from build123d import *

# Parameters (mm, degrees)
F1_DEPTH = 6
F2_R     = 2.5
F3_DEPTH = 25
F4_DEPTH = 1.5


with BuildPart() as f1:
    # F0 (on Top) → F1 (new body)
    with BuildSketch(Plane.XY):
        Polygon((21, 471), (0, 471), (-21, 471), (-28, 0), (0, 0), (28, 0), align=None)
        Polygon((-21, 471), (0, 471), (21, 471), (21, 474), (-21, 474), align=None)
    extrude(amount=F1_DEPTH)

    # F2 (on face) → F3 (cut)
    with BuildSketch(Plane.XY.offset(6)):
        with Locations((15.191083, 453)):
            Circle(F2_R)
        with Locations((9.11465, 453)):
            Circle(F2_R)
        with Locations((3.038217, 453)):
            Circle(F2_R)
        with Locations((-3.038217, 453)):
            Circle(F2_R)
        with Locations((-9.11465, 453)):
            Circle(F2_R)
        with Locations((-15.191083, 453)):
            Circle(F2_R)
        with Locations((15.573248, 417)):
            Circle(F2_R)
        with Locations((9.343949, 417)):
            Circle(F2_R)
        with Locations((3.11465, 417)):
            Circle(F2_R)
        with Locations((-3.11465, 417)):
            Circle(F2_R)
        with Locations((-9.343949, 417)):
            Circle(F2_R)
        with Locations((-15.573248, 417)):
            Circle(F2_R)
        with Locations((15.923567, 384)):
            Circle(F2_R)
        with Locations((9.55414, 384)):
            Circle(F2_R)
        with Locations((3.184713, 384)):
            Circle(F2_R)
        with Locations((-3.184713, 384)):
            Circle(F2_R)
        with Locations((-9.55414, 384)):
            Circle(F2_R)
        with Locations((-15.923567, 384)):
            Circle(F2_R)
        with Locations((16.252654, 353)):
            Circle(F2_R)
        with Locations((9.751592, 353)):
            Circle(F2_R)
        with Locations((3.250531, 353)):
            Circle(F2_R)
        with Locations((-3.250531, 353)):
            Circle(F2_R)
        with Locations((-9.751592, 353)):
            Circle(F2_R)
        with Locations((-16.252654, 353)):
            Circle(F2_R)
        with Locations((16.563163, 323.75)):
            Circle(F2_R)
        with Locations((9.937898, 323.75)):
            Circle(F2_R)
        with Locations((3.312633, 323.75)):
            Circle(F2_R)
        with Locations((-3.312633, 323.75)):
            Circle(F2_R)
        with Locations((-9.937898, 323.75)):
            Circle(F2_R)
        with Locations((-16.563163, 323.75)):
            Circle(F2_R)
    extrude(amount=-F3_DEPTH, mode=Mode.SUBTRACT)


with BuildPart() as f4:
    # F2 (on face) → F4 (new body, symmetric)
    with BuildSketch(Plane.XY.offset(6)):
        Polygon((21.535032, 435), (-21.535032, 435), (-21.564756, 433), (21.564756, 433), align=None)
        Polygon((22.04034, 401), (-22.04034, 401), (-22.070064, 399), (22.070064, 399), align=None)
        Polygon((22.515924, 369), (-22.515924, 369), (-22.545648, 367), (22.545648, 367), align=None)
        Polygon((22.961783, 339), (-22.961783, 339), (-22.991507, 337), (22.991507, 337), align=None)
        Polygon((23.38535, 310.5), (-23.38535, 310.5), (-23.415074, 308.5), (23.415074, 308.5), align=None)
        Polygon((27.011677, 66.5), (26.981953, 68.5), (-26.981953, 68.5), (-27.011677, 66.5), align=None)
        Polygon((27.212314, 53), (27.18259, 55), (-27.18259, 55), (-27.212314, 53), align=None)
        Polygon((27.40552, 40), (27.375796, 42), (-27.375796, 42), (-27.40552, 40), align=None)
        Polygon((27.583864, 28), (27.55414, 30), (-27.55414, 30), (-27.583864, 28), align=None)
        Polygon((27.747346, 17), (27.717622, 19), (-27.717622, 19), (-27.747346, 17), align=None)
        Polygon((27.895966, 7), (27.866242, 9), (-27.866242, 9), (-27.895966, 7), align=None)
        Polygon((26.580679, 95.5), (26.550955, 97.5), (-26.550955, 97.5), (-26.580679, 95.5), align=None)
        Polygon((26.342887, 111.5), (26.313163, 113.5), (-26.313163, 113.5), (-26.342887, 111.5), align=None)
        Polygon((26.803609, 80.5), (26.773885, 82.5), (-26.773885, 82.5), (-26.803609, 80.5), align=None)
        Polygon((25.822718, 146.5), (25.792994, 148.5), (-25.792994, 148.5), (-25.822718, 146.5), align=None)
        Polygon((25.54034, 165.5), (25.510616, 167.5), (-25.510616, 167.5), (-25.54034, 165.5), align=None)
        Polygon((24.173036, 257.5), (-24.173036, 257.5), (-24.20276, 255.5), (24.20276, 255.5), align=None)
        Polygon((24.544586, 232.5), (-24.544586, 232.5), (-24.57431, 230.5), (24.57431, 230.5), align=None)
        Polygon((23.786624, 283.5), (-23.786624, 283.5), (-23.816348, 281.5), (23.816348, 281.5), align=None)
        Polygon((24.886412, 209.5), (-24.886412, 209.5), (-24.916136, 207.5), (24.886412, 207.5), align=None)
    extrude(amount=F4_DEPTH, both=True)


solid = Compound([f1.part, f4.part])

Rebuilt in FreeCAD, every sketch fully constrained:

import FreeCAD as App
import Part
import Sketcher


def add_polygon(sketch, points):
    """Adds a closed chain of lines whose ends are joined by coincident constraints."""
    first, n = sketch.GeometryCount, len(points)
    for a, b in zip(points, points[1:] + points[:1]):
        sketch.addGeometry(Part.LineSegment(App.Vector(*a, 0), App.Vector(*b, 0)), False)
    for i in range(n):
        sketch.addConstraint(Sketcher.Constraint("Coincident", first + i, 2, first + (i + 1) % n, 1))

doc = App.newDocument("Part")
params = doc.addObject("Spreadsheet::Sheet", "Params")
for row, (alias, value) in enumerate([
    ("sketch1_width", "56 mm"),
    ("sketch1_width2", "42 mm"),
    ("sketch1_height", "3 mm"),
    ("pad1_length", "6 mm"),
    ("sketch2_diameter", "5 mm"),
    ("pocket1_length", "25 mm"),
    ("sketch3_height", "2 mm"),
    ("pad2_length", "3 mm"),
], start=1):
    params.set(f"A{row}", alias)
    params.set(f"B{row}", "=" + value)
    params.setAlias(f"B{row}", alias)

body = doc.addObject("PartDesign::Body", "Body")

# Sketch on XY plane
sketch1 = body.newObject("Sketcher::SketchObject", "Sketch")
sketch1.AttachmentSupport = (doc.getObject("XY_Plane"), [""])
sketch1.MapMode = "FlatFace"
add_polygon(sketch1, [(-21, 471), (-28, 0), (28, 0), (21, 471), (21, 474), (-21, 474)])  # lines 0-5
sketch1.addConstraint([
    Sketcher.Constraint("Horizontal", 1),
    Sketcher.Constraint("Vertical", 3),
    Sketcher.Constraint("Horizontal", 4),
    Sketcher.Constraint("Vertical", 5),
    Sketcher.Constraint("Symmetric", 0, 2, 1, 2, -1, 1),
    Sketcher.Constraint("Symmetric", 2, 2, 5, 2, -2),
    Sketcher.Constraint("DistanceX", 1, 1, 1, 2, 56.0),
    Sketcher.Constraint("DistanceX", 4, 2, 4, 1, 42.0),
    Sketcher.Constraint("DistanceY", 3, 1, 3, 2, 3.0),
    Sketcher.Constraint("DistanceY", -1, 1, 2, 2, 471.0),
])
sketch1.setExpression("Constraints[12]", "Params.sketch1_width")
sketch1.setExpression("Constraints[13]", "Params.sketch1_width2")
sketch1.setExpression("Constraints[14]", "Params.sketch1_height")
pad1 = body.newObject("PartDesign::Pad", "Pad")
pad1.Profile = sketch1
pad1.setExpression("Length", "Params.pad1_length")

# Sketch on XY plane
sketch2 = body.newObject("Sketcher::SketchObject", "Sketch001")
sketch2.AttachmentSupport = (doc.getObject("XY_Plane"), [""])
sketch2.MapMode = "FlatFace"
sketch2.AttachmentOffset = App.Placement(App.Vector(0, 0, 6), App.Rotation())
sketch2.addGeometry([
    Part.Circle(App.Vector(15.2, 453, 0), App.Vector(0, 0, 1), 2.5),  # 0
    Part.Circle(App.Vector(9.1, 453, 0), App.Vector(0, 0, 1), 2.5),  # 1
    Part.Circle(App.Vector(3, 453, 0), App.Vector(0, 0, 1), 2.5),  # 2
    Part.Circle(App.Vector(-3, 453, 0), App.Vector(0, 0, 1), 2.5),  # 3
    Part.Circle(App.Vector(-9.1, 453, 0), App.Vector(0, 0, 1), 2.5),  # 4
    Part.Circle(App.Vector(-15.2, 453, 0), App.Vector(0, 0, 1), 2.5),  # 5
    Part.Circle(App.Vector(15.6, 417, 0), App.Vector(0, 0, 1), 2.5),  # 6
    Part.Circle(App.Vector(9.3, 417, 0), App.Vector(0, 0, 1), 2.5),  # 7
    Part.Circle(App.Vector(3.1, 417, 0), App.Vector(0, 0, 1), 2.5),  # 8
    Part.Circle(App.Vector(-3.1, 417, 0), App.Vector(0, 0, 1), 2.5),  # 9
    Part.Circle(App.Vector(-9.3, 417, 0), App.Vector(0, 0, 1), 2.5),  # 10
    Part.Circle(App.Vector(-15.6, 417, 0), App.Vector(0, 0, 1), 2.5),  # 11
    Part.Circle(App.Vector(15.9, 384, 0), App.Vector(0, 0, 1), 2.5),  # 12
    Part.Circle(App.Vector(9.6, 384, 0), App.Vector(0, 0, 1), 2.5),  # 13
    Part.Circle(App.Vector(3.2, 384, 0), App.Vector(0, 0, 1), 2.5),  # 14
    Part.Circle(App.Vector(-3.2, 384, 0), App.Vector(0, 0, 1), 2.5),  # 15
    Part.Circle(App.Vector(-9.6, 384, 0), App.Vector(0, 0, 1), 2.5),  # 16
    Part.Circle(App.Vector(-15.9, 384, 0), App.Vector(0, 0, 1), 2.5),  # 17
    Part.Circle(App.Vector(16.3, 353, 0), App.Vector(0, 0, 1), 2.5),  # 18
    Part.Circle(App.Vector(9.8, 353, 0), App.Vector(0, 0, 1), 2.5),  # 19
    Part.Circle(App.Vector(3.3, 353, 0), App.Vector(0, 0, 1), 2.5),  # 20
    Part.Circle(App.Vector(-3.3, 353, 0), App.Vector(0, 0, 1), 2.5),  # 21
    Part.Circle(App.Vector(-9.8, 353, 0), App.Vector(0, 0, 1), 2.5),  # 22
    Part.Circle(App.Vector(-16.3, 353, 0), App.Vector(0, 0, 1), 2.5),  # 23
    Part.Circle(App.Vector(16.6, 323.8, 0), App.Vector(0, 0, 1), 2.5),  # 24
    Part.Circle(App.Vector(9.9, 323.8, 0), App.Vector(0, 0, 1), 2.5),  # 25
    Part.Circle(App.Vector(3.3, 323.8, 0), App.Vector(0, 0, 1), 2.5),  # 26
    Part.Circle(App.Vector(-3.3, 323.8, 0), App.Vector(0, 0, 1), 2.5),  # 27
    Part.Circle(App.Vector(-9.9, 323.8, 0), App.Vector(0, 0, 1), 2.5),  # 28
    Part.Circle(App.Vector(-16.6, 323.8, 0), App.Vector(0, 0, 1), 2.5),  # 29
], False)
sketch2.addConstraint([
    Sketcher.Constraint("Equal", 0, 1),
    Sketcher.Constraint("Equal", 1, 2),
    Sketcher.Constraint("Equal", 2, 3),
    Sketcher.Constraint("Equal", 3, 4),
    Sketcher.Constraint("Equal", 4, 5),
    Sketcher.Constraint("Equal", 5, 6),
    Sketcher.Constraint("Equal", 6, 7),
    Sketcher.Constraint("Equal", 7, 8),
    Sketcher.Constraint("Equal", 8, 9),
    Sketcher.Constraint("Equal", 9, 10),
    Sketcher.Constraint("Equal", 10, 11),
    Sketcher.Constraint("Equal", 11, 12),
    Sketcher.Constraint("Equal", 12, 13),
    Sketcher.Constraint("Equal", 13, 14),
    Sketcher.Constraint("Equal", 14, 15),
    Sketcher.Constraint("Equal", 15, 16),
    Sketcher.Constraint("Equal", 16, 17),
    Sketcher.Constraint("Equal", 17, 18),
    Sketcher.Constraint("Equal", 18, 19),
    Sketcher.Constraint("Equal", 19, 20),
    Sketcher.Constraint("Equal", 20, 21),
    Sketcher.Constraint("Equal", 21, 22),
    Sketcher.Constraint("Equal", 22, 23),
    Sketcher.Constraint("Equal", 23, 24),
    Sketcher.Constraint("Equal", 24, 25),
    Sketcher.Constraint("Equal", 25, 26),
    Sketcher.Constraint("Equal", 26, 27),
    Sketcher.Constraint("Equal", 27, 28),
    Sketcher.Constraint("Equal", 28, 29),
    Sketcher.Constraint("Symmetric", 2, 3, 3, 3, -2),
    Sketcher.Constraint("Symmetric", 1, 3, 4, 3, -2),
    Sketcher.Constraint("Symmetric", 0, 3, 5, 3, -2),
    Sketcher.Constraint("Symmetric", 8, 3, 9, 3, -2),
    Sketcher.Constraint("Symmetric", 7, 3, 10, 3, -2),
    Sketcher.Constraint("Symmetric", 6, 3, 11, 3, -2),
    Sketcher.Constraint("Symmetric", 14, 3, 15, 3, -2),
    Sketcher.Constraint("Symmetric", 13, 3, 16, 3, -2),
    Sketcher.Constraint("Symmetric", 12, 3, 17, 3, -2),
    Sketcher.Constraint("Symmetric", 20, 3, 21, 3, -2),
    Sketcher.Constraint("Symmetric", 19, 3, 22, 3, -2),
    Sketcher.Constraint("Symmetric", 18, 3, 23, 3, -2),
    Sketcher.Constraint("Symmetric", 26, 3, 27, 3, -2),
    Sketcher.Constraint("Symmetric", 25, 3, 28, 3, -2),
    Sketcher.Constraint("Symmetric", 24, 3, 29, 3, -2),
    Sketcher.Constraint("Horizontal", 0, 3, 1, 3),
    Sketcher.Constraint("Horizontal", 1, 3, 2, 3),
    Sketcher.Constraint("Horizontal", 6, 3, 7, 3),
    Sketcher.Constraint("Horizontal", 7, 3, 8, 3),
    Sketcher.Constraint("Horizontal", 12, 3, 13, 3),
    Sketcher.Constraint("Horizontal", 13, 3, 14, 3),
    Sketcher.Constraint("Horizontal", 18, 3, 19, 3),
    Sketcher.Constraint("Horizontal", 19, 3, 20, 3),
    Sketcher.Constraint("Horizontal", 24, 3, 25, 3),
    Sketcher.Constraint("Horizontal", 25, 3, 26, 3),
    Sketcher.Constraint("Diameter", 0, 5.0),
    Sketcher.Constraint("DistanceY", -1, 1, 0, 3, 453.0),
    Sketcher.Constraint("DistanceY", -1, 1, 6, 3, 417.0),
    Sketcher.Constraint("DistanceY", -1, 1, 12, 3, 384.0),
    Sketcher.Constraint("DistanceY", -1, 1, 18, 3, 353.0),
    Sketcher.Constraint("DistanceX", 8, 3, 1, 3, 6.0),
    Sketcher.Constraint("DistanceY", -1, 1, 24, 3, 323.75),
    Sketcher.Constraint("DistanceX", 3, 3, 0, 3, 18.2293),
    Sketcher.Constraint("DistanceX", 4, 3, 1, 3, 18.2293),
    Sketcher.Constraint("DistanceX", 1, 3, 6, 3, 6.458598),
    Sketcher.Constraint("DistanceX", 7, 3, 6, 3, 6.229299),
    Sketcher.Constraint("DistanceX", 20, 3, 26, 3, 0.062102),
    Sketcher.Constraint("DistanceX", -1, 1, 13, 3, 9.55414),
    Sketcher.Constraint("DistanceX", -1, 1, 20, 3, 3.250531),
    Sketcher.Constraint("DistanceX", 2, 3, 6, 3, 12.535031),
    Sketcher.Constraint("DistanceX", 6, 3, 12, 3, 0.350319),
    Sketcher.Constraint("DistanceX", 15, 3, 12, 3, 19.10828),
    Sketcher.Constraint("DistanceX", 14, 3, 18, 3, 13.067941),
    Sketcher.Constraint("DistanceX", 19, 3, 18, 3, 6.501062),
    Sketcher.Constraint("DistanceX", 18, 3, 24, 3, 0.310509),
    Sketcher.Constraint("DistanceX", 21, 3, 25, 3, 13.188429),
])
sketch2.setExpression("Constraints[54]", "Params.sketch2_diameter")
pocket1 = body.newObject("PartDesign::Pocket", "Pocket")
pocket1.Profile = sketch2
pocket1.setExpression("Length", "Params.pocket1_length")
body2 = doc.addObject("PartDesign::Body", "Body001")
body2.AllowCompound = True

# Sketch on XY plane
sketch3 = body2.newObject("Sketcher::SketchObject", "Sketch002")
sketch3.AttachmentSupport = (doc.getObject("XY_Plane001"), [""])
sketch3.MapMode = "FlatFace"
sketch3.AttachmentOffset = App.Placement(App.Vector(0, 0, 6), App.Rotation())
add_polygon(sketch3, [(21.5, 435), (-21.5, 435), (-21.6, 433), (21.6, 433)])  # lines 0-3
add_polygon(sketch3, [(22, 401), (-22, 401), (-22.1, 399), (22.1, 399)])  # lines 4-7
add_polygon(sketch3, [(22.5, 369), (-22.5, 369), (-22.5, 367), (22.5, 367)])  # lines 8-11
add_polygon(sketch3, [(23, 339), (-23, 339), (-23, 337), (23, 337)])  # lines 12-15
add_polygon(sketch3, [(23.4, 310.5), (-23.4, 310.5), (-23.4, 308.5), (23.4, 308.5)])  # lines 16-19
add_polygon(sketch3, [(27, 66.5), (27, 68.5), (-27, 68.5), (-27, 66.5)])  # lines 20-23
add_polygon(sketch3, [(27.2, 53), (27.2, 55), (-27.2, 55), (-27.2, 53)])  # lines 24-27
add_polygon(sketch3, [(27.4, 40), (27.4, 42), (-27.4, 42), (-27.4, 40)])  # lines 28-31
add_polygon(sketch3, [(27.6, 28), (27.6, 30), (-27.6, 30), (-27.6, 28)])  # lines 32-35
add_polygon(sketch3, [(27.7, 17), (27.7, 19), (-27.7, 19), (-27.7, 17)])  # lines 36-39
add_polygon(sketch3, [(27.9, 7), (27.9, 9), (-27.9, 9), (-27.9, 7)])  # lines 40-43
add_polygon(sketch3, [(26.6, 95.5), (26.6, 97.5), (-26.6, 97.5), (-26.6, 95.5)])  # lines 44-47
add_polygon(sketch3, [(26.3, 111.5), (26.3, 113.5), (-26.3, 113.5), (-26.3, 111.5)])  # lines 48-51
add_polygon(sketch3, [(26.8, 80.5), (26.8, 82.5), (-26.8, 82.5), (-26.8, 80.5)])  # lines 52-55
add_polygon(sketch3, [(25.8, 146.5), (25.8, 148.5), (-25.8, 148.5), (-25.8, 146.5)])  # lines 56-59
add_polygon(sketch3, [(25.5, 165.5), (25.5, 167.5), (-25.5, 167.5), (-25.5, 165.5)])  # lines 60-63
add_polygon(sketch3, [(24.2, 257.5), (-24.2, 257.5), (-24.2, 255.5), (24.2, 255.5)])  # lines 64-67
add_polygon(sketch3, [(24.5, 232.5), (-24.5, 232.5), (-24.6, 230.5), (24.6, 230.5)])  # lines 68-71
add_polygon(sketch3, [(23.8, 283.5), (-23.8, 283.5), (-23.8, 281.5), (23.8, 281.5)])  # lines 72-75
add_polygon(sketch3, [(24.9, 209.5), (-24.9, 209.5), (-24.9, 207.5), (24.9, 207.5)])  # lines 76-79
sketch3.addConstraint([
    Sketcher.Constraint("Horizontal", 0),
    Sketcher.Constraint("Horizontal", 2),
    Sketcher.Constraint("Horizontal", 4),
    Sketcher.Constraint("Horizontal", 6),
    Sketcher.Constraint("Horizontal", 8),
    Sketcher.Constraint("Horizontal", 10),
    Sketcher.Constraint("Horizontal", 12),
    Sketcher.Constraint("Horizontal", 14),
    Sketcher.Constraint("Horizontal", 16),
    Sketcher.Constraint("Horizontal", 18),
    Sketcher.Constraint("Horizontal", 21),
    Sketcher.Constraint("Horizontal", 23),
    Sketcher.Constraint("Horizontal", 25),
    Sketcher.Constraint("Horizontal", 27),
    Sketcher.Constraint("Horizontal", 29),
    Sketcher.Constraint("Horizontal", 31),
    Sketcher.Constraint("Horizontal", 33),
    Sketcher.Constraint("Horizontal", 35),
    Sketcher.Constraint("Horizontal", 37),
    Sketcher.Constraint("Horizontal", 39),
    Sketcher.Constraint("Horizontal", 41),
    Sketcher.Constraint("Horizontal", 43),
    Sketcher.Constraint("Horizontal", 45),
    Sketcher.Constraint("Horizontal", 47),
    Sketcher.Constraint("Horizontal", 49),
    Sketcher.Constraint("Horizontal", 51),
    Sketcher.Constraint("Horizontal", 53),
    Sketcher.Constraint("Horizontal", 55),
    Sketcher.Constraint("Horizontal", 57),
    Sketcher.Constraint("Horizontal", 59),
    Sketcher.Constraint("Horizontal", 61),
    Sketcher.Constraint("Horizontal", 63),
    Sketcher.Constraint("Horizontal", 64),
    Sketcher.Constraint("Horizontal", 66),
    Sketcher.Constraint("Horizontal", 68),
    Sketcher.Constraint("Horizontal", 70),
    Sketcher.Constraint("Horizontal", 72),
    Sketcher.Constraint("Horizontal", 74),
    Sketcher.Constraint("Horizontal", 76),
    Sketcher.Constraint("Horizontal", 78),
    Sketcher.Constraint("Vertical", 79),
    Sketcher.Constraint("Parallel", 1, 5),
    Sketcher.Constraint("Parallel", 3, 7),
    Sketcher.Constraint("Parallel", 5, 9),
    Sketcher.Constraint("Parallel", 7, 11),
    Sketcher.Constraint("Parallel", 9, 13),
    Sketcher.Constraint("Parallel", 11, 15),
    Sketcher.Constraint("Parallel", 13, 17),
    Sketcher.Constraint("Parallel", 15, 19),
    Sketcher.Constraint("Parallel", 19, 20),
    Sketcher.Constraint("Parallel", 17, 22),
    Sketcher.Constraint("Parallel", 20, 24),
    Sketcher.Constraint("Parallel", 22, 26),
    Sketcher.Constraint("Parallel", 24, 28),
    Sketcher.Constraint("Parallel", 26, 30),
    Sketcher.Constraint("Parallel", 28, 32),
    Sketcher.Constraint("Parallel", 30, 34),
    Sketcher.Constraint("Parallel", 32, 36),
    Sketcher.Constraint("Parallel", 34, 38),
    Sketcher.Constraint("Parallel", 36, 40),
    Sketcher.Constraint("Parallel", 38, 42),
    Sketcher.Constraint("Parallel", 40, 44),
    Sketcher.Constraint("Parallel", 42, 46),
    Sketcher.Constraint("Parallel", 44, 48),
    Sketcher.Constraint("Parallel", 46, 50),
    Sketcher.Constraint("Parallel", 48, 52),
    Sketcher.Constraint("Parallel", 50, 54),
    Sketcher.Constraint("Parallel", 52, 56),
    Sketcher.Constraint("Parallel", 54, 58),
    Sketcher.Constraint("Parallel", 56, 60),
    Sketcher.Constraint("Parallel", 58, 62),
    Sketcher.Constraint("Parallel", 62, 65),
    Sketcher.Constraint("Parallel", 60, 67),
    Sketcher.Constraint("Parallel", 65, 69),
    Sketcher.Constraint("Parallel", 67, 71),
    Sketcher.Constraint("Parallel", 69, 73),
    Sketcher.Constraint("Parallel", 71, 75),
    Sketcher.Constraint("Parallel", 73, 77),
    Sketcher.Constraint("Equal", 1, 3),
    Sketcher.Constraint("Equal", 3, 5),
    Sketcher.Constraint("Equal", 7, 9),
    Sketcher.Constraint("Equal", 11, 13),
    Sketcher.Constraint("Equal", 15, 17),
    Sketcher.Constraint("Equal", 19, 20),
    Sketcher.Constraint("Equal", 22, 24),
    Sketcher.Constraint("Equal", 26, 28),
    Sketcher.Constraint("Equal", 30, 32),
    Sketcher.Constraint("Equal", 34, 36),
    Sketcher.Constraint("Equal", 38, 40),
    Sketcher.Constraint("Equal", 42, 44),
    Sketcher.Constraint("Equal", 46, 48),
    Sketcher.Constraint("Equal", 50, 52),
    Sketcher.Constraint("Equal", 54, 56),
    Sketcher.Constraint("Equal", 58, 60),
    Sketcher.Constraint("Equal", 62, 65),
    Sketcher.Constraint("Equal", 67, 69),
    Sketcher.Constraint("Equal", 71, 73),
    Sketcher.Constraint("Equal", 75, 77),
    Sketcher.Constraint("DistanceY", 79, 1, 79, 2, 2.0),
    Sketcher.Constraint("DistanceY", -1, 1, 0, 2, 435.0),
    Sketcher.Constraint("DistanceY", -1, 1, 4, 2, 401.0),
    Sketcher.Constraint("DistanceY", -1, 1, 8, 2, 369.0),
    Sketcher.Constraint("DistanceY", -1, 1, 12, 2, 339.0),
    Sketcher.Constraint("DistanceY", -1, 1, 24, 2, 55.0),
    Sketcher.Constraint("DistanceY", -1, 1, 28, 2, 42.0),
    Sketcher.Constraint("DistanceY", -1, 1, 32, 2, 30.0),
    Sketcher.Constraint("DistanceY", -1, 1, 36, 2, 19.0),
    Sketcher.Constraint("DistanceY", -1, 1, 40, 2, 9.0),
    Sketcher.Constraint("DistanceY", -1, 1, 16, 2, 310.5),
    Sketcher.Constraint("DistanceY", -1, 1, 20, 2, 68.5),
    Sketcher.Constraint("DistanceY", -1, 1, 44, 2, 97.5),
    Sketcher.Constraint("DistanceY", -1, 1, 48, 2, 113.5),
    Sketcher.Constraint("DistanceY", -1, 1, 52, 2, 82.5),
    Sketcher.Constraint("DistanceY", -1, 1, 56, 2, 148.5),
    Sketcher.Constraint("DistanceY", -1, 1, 60, 2, 167.5),
    Sketcher.Constraint("DistanceY", -1, 1, 64, 2, 257.5),
    Sketcher.Constraint("DistanceY", -1, 1, 68, 2, 232.5),
    Sketcher.Constraint("DistanceY", -1, 1, 72, 2, 283.5),
    Sketcher.Constraint("DistanceY", -1, 1, 76, 2, 209.5),
    Sketcher.Constraint("DistanceX", 16, 2, 16, 1, 46.7707),
    Sketcher.Constraint("DistanceX", 2, 1, 2, 2, 43.129512),
    Sketcher.Constraint("DistanceX", 4, 2, 4, 1, 44.08068),
    Sketcher.Constraint("DistanceX", 25, 2, 25, 1, 54.36518),
    Sketcher.Constraint("DistanceX", 31, 1, 31, 2, 54.81104),
    Sketcher.Constraint("DistanceX", 33, 2, 33, 1, 55.10828),
    Sketcher.Constraint("DistanceX", 45, 2, 45, 1, 53.10191),
    Sketcher.Constraint("DistanceX", 53, 2, 53, 1, 53.54777),
    Sketcher.Constraint("DistanceX", 55, 1, 55, 2, 53.607218),
    Sketcher.Constraint("DistanceX", 61, 2, 61, 1, 51.021232),
    Sketcher.Constraint("DistanceX", 66, 1, 66, 2, 48.40552),
    Sketcher.Constraint("DistanceX", 68, 2, 68, 1, 49.089172),
    Sketcher.Constraint("DistanceX", 78, 1, 78, 2, 49.802548),
    Sketcher.Constraint("DistanceX", 8, 2, 8, 1, 45.031848),
    Sketcher.Constraint("DistanceX", 12, 2, 12, 1, 45.923566),
    Sketcher.Constraint("DistanceX", 21, 2, 21, 1, 53.963906),
    Sketcher.Constraint("DistanceX", 37, 2, 37, 1, 55.435244),
    Sketcher.Constraint("DistanceX", 41, 2, 41, 1, 55.732484),
    Sketcher.Constraint("DistanceX", 49, 2, 49, 1, 52.626326),
    Sketcher.Constraint("DistanceX", 57, 2, 57, 1, 51.585988),
    Sketcher.Constraint("DistanceX", 72, 2, 72, 1, 47.573248),
    Sketcher.Constraint("DistanceX", 4, 2, -1, 1, 22.04034),
    Sketcher.Constraint("DistanceX", 9, 2, -1, 1, 22.545648),
    Sketcher.Constraint("DistanceX", 16, 2, -1, 1, 23.38535),
    Sketcher.Constraint("DistanceX", -1, 1, 24, 2, 27.18259),
    Sketcher.Constraint("DistanceX", 30, 2, -1, 1, 27.40552),
    Sketcher.Constraint("DistanceX", -1, 1, 32, 2, 27.55414),
    Sketcher.Constraint("DistanceX", -1, 1, 36, 2, 27.717622),
    Sketcher.Constraint("DistanceX", -1, 1, 40, 2, 27.866242),
    Sketcher.Constraint("DistanceX", 46, 2, -1, 1, 26.580679),
    Sketcher.Constraint("DistanceX", 54, 2, -1, 1, 26.803609),
    Sketcher.Constraint("DistanceX", 62, 2, -1, 1, 25.54034),
    Sketcher.Constraint("DistanceX", 65, 2, -1, 1, 24.20276),
    Sketcher.Constraint("DistanceX", 69, 2, -1, 1, 24.57431),
    Sketcher.Constraint("DistanceX", 73, 2, -1, 1, 23.816348),
    Sketcher.Constraint("DistanceX", 76, 2, -1, 1, 24.886412),
    Sketcher.Constraint("DistanceX", 0, 2, -1, 1, 21.535032),
    Sketcher.Constraint("DistanceX", 12, 2, -1, 1, 22.961783),
    Sketcher.Constraint("DistanceX", -1, 1, 20, 2, 26.981953),
    Sketcher.Constraint("DistanceX", -1, 1, 48, 2, 26.313163),
    Sketcher.Constraint("DistanceX", -1, 1, 56, 2, 25.792994),
])
sketch3.setExpression("Constraints[178]", "Params.sketch3_height")
pad2 = body2.newObject("PartDesign::Pad", "Pad001")
pad2.Profile = sketch3
pad2.setExpression("Length", "Params.pad2_length")
pad2.Midplane = True

doc.recompute()
